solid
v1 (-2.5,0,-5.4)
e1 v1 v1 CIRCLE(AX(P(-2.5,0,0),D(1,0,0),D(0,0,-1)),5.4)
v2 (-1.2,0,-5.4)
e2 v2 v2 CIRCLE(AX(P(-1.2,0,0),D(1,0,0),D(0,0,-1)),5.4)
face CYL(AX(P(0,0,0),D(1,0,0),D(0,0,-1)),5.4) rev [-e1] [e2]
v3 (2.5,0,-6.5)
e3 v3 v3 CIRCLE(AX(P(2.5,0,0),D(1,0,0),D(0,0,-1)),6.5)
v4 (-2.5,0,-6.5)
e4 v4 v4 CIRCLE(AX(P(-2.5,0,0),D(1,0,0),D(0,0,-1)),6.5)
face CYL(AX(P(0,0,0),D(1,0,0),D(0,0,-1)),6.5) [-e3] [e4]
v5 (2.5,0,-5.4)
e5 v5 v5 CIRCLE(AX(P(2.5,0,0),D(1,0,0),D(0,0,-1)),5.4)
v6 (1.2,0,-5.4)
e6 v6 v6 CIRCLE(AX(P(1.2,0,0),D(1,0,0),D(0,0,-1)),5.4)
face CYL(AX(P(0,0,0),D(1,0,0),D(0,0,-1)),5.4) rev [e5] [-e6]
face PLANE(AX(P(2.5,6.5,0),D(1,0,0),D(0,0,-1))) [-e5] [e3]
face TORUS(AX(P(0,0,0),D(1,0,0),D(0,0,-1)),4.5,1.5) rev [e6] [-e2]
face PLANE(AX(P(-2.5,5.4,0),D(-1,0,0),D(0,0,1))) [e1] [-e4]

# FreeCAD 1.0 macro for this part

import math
import FreeCAD as App
import Part
import Sketcher
from FreeCAD import Vector

doc = App.newDocument("Part")
body = doc.addObject("PartDesign::Body", "Body")

sketch1 = body.newObject("Sketcher::SketchObject", "Sketch")
sketch1.AttachmentSupport = (doc.getObject("XY_Plane"), [""])
sketch1.MapMode = "FlatFace"
sketch1.addGeometry(Part.LineSegment(Vector(2.5, 6.5, 0), Vector(-2.5, 6.5, 0)), False)
sketch1.addGeometry(Part.LineSegment(Vector(-2.5, 6.5, 0), Vector(-2.5, 5.4, 0)), False)
sketch1.addGeometry(Part.LineSegment(Vector(-2.5, 5.4, 0), Vector(-1.2, 5.4, 0)), False)
sketch1.addGeometry(Part.ArcOfCircle(Part.Circle(Vector(0, 4.5, 0), Vector(0, 0, 1), 1.5), math.radians(37), math.radians(143)), False)
sketch1.addGeometry(Part.LineSegment(Vector(1.2, 5.4, 0), Vector(2.5, 5.4, 0)), False)
sketch1.addGeometry(Part.LineSegment(Vector(2.5, 5.4, 0), Vector(2.5, 6.5, 0)), False)
sketch1.addConstraint(Sketcher.Constraint("Coincident", 0, 2, 1, 1))
sketch1.addConstraint(Sketcher.Constraint("Coincident", 1, 2, 2, 1))
sketch1.addConstraint(Sketcher.Constraint("Coincident", 2, 2, 3, 2))
sketch1.addConstraint(Sketcher.Constraint("Coincident", 3, 1, 4, 1))
sketch1.addConstraint(Sketcher.Constraint("Coincident", 4, 2, 5, 1))
sketch1.addConstraint(Sketcher.Constraint("Coincident", 5, 2, 0, 1))
sketch1.addConstraint(Sketcher.Constraint("Horizontal", 0))
sketch1.addConstraint(Sketcher.Constraint("Vertical", 1))
sketch1.addConstraint(Sketcher.Constraint("Horizontal", 2))
sketch1.addConstraint(Sketcher.Constraint("Horizontal", 4))
sketch1.addConstraint(Sketcher.Constraint("Vertical", 5))
sketch1.addConstraint(Sketcher.Constraint("Symmetric", 2, 2, 3, 1, -2))
sketch1.addConstraint(Sketcher.Constraint("Equal", 2, 4))
sketch1.addConstraint(Sketcher.Constraint("Radius", 3, 1.5))
sketch1.addConstraint(Sketcher.Constraint("DistanceX", 0, 2, 0, 1, 5.0))
sketch1.addConstraint(Sketcher.Constraint("DistanceX", 2, 1, 2, 2, 1.3))
sketch1.addConstraint(Sketcher.Constraint("DistanceY", 1, 2, 1, 1, 1.1))
sketch1.addConstraint(Sketcher.Constraint("DistanceY", -1, 1, 3, 3, 4.5))
revolution = body.newObject("PartDesign::Revolution", "Revolution")
revolution.Profile = sketch1
revolution.ReferenceAxis = (sketch1, ["H_Axis"])
revolution.Angle = 360

doc.recompute()
